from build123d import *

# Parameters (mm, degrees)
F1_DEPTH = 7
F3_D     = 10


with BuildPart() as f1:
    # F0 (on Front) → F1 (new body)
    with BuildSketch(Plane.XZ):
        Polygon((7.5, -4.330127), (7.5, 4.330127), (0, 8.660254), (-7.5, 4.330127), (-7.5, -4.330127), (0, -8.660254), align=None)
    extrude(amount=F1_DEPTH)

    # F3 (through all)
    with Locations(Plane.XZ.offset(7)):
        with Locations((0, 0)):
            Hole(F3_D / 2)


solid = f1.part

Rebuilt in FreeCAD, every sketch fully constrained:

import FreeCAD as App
import Part
import Sketcher

V = App.Vector
Q = App.Units.Quantity

doc = App.newDocument("Part")
body = doc.addObject("PartDesign::Body", "Body")

# Sketch on XZ plane
sketch1 = body.newObject("Sketcher::SketchObject", "Sketch")
sketch1.AttachmentSupport = (doc.getObject("XZ_Plane"), [""])
sketch1.MapMode = "FlatFace"
sketch1.addGeometry([
    Part.LineSegment(V(8, -4, 0), V(8, 4, 0)),  # 0
    Part.LineSegment(V(8, 4, 0), V(0, 9, 0)),  # 1
    Part.LineSegment(V(0, 9, 0), V(-8, 4, 0)),  # 2
    Part.LineSegment(V(-8, 4, 0), V(-8, -4, 0)),  # 3
    Part.LineSegment(V(-8, -4, 0), V(0, -9, 0)),  # 4
    Part.LineSegment(V(0, -9, 0), V(8, -4, 0)),  # 5
], False)
sketch1.addConstraint([
    Sketcher.Constraint("Coincident", 0, 2, 1, 1),
    Sketcher.Constraint("Coincident", 1, 2, 2, 1),
    Sketcher.Constraint("Coincident", 2, 2, 3, 1),
    Sketcher.Constraint("Coincident", 3, 2, 4, 1),
    Sketcher.Constraint("Coincident", 4, 2, 5, 1),
    Sketcher.Constraint("Coincident", 5, 2, 0, 1),
    Sketcher.Constraint("Vertical", 0),
    Sketcher.Constraint("Vertical", 3),
    Sketcher.Constraint("Symmetric", 0, 2, 3, 2, -1, 1),
    Sketcher.Constraint("Symmetric", 1, 2, 4, 2, -1, 1),
    Sketcher.Constraint("PointOnObject", 1, 2, -2),
    Sketcher.Constraint("Parallel", 2, 5),
    Sketcher.Constraint("Horizontal", 0, 2, 2, 2),
    Sketcher.Constraint("Angle", 1, Q("150 deg")),
    Sketcher.Constraint("DistanceX", 2, 2, 0, 2, Q("15 mm")),
    Sketcher.Constraint("DistanceY", 0, 1, 0, 2, Q("8.660254 mm")),
])
pad1 = body.newObject("PartDesign::Pad", "Pad")
pad1.Profile = sketch1
pad1.Length = 7

# Sketch on XZ plane
sketch2 = body.newObject("Sketcher::SketchObject", "Sketch001")
sketch2.AttachmentSupport = (doc.getObject("XZ_Plane"), [""])
sketch2.MapMode = "FlatFace"
sketch2.AttachmentOffset = App.Placement(V(0, 0, 7), App.Rotation())
sketch2.addGeometry(Part.Circle(V(0, 0, 0), V(0, 0, 1), 5), False)
sketch2.addConstraint([
    Sketcher.Constraint("Coincident", 0, 3, -1, 1),
    Sketcher.Constraint("Diameter", 0, Q("10 mm")),
])
doc.recompute()
hole = body.newObject("PartDesign::Hole", "Hole")
hole.Profile = sketch2
hole.ThreadType = "None"
hole.Diameter = 10
hole.DepthType = "ThroughAll"

doc.recompute()
